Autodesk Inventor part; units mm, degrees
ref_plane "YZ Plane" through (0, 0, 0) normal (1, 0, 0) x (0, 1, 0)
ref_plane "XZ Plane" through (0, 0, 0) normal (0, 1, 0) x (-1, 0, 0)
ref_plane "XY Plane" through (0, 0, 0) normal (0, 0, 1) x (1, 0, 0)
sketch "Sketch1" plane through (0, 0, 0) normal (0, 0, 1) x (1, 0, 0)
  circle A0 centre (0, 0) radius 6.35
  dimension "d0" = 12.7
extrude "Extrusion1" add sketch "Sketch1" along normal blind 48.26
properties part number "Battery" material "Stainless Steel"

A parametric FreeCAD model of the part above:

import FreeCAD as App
import Part
import Sketcher
from FreeCAD import Vector
Q = App.Units.Quantity

doc = App.newDocument("Part")
body = doc.addObject("PartDesign::Body", "Body")

sketch1 = body.newObject("Sketcher::SketchObject", "Sketch")
sketch1.AttachmentSupport = (doc.getObject("XY_Plane"), [""])
sketch1.MapMode = "FlatFace"
sketch1.addGeometry(Part.Circle(Vector(0, 0, 0), Vector(0, 0, 1), 6.35), False)
sketch1.addConstraint([
    Sketcher.Constraint("Coincident", 0, 3, -1, 1),
    Sketcher.Constraint("Diameter", 0, Q("0.5 in")),
])
pad1 = body.newObject("PartDesign::Pad", "Pad")
pad1.Profile = sketch1
pad1.Length = Q("1.9 in")

doc.recompute()
